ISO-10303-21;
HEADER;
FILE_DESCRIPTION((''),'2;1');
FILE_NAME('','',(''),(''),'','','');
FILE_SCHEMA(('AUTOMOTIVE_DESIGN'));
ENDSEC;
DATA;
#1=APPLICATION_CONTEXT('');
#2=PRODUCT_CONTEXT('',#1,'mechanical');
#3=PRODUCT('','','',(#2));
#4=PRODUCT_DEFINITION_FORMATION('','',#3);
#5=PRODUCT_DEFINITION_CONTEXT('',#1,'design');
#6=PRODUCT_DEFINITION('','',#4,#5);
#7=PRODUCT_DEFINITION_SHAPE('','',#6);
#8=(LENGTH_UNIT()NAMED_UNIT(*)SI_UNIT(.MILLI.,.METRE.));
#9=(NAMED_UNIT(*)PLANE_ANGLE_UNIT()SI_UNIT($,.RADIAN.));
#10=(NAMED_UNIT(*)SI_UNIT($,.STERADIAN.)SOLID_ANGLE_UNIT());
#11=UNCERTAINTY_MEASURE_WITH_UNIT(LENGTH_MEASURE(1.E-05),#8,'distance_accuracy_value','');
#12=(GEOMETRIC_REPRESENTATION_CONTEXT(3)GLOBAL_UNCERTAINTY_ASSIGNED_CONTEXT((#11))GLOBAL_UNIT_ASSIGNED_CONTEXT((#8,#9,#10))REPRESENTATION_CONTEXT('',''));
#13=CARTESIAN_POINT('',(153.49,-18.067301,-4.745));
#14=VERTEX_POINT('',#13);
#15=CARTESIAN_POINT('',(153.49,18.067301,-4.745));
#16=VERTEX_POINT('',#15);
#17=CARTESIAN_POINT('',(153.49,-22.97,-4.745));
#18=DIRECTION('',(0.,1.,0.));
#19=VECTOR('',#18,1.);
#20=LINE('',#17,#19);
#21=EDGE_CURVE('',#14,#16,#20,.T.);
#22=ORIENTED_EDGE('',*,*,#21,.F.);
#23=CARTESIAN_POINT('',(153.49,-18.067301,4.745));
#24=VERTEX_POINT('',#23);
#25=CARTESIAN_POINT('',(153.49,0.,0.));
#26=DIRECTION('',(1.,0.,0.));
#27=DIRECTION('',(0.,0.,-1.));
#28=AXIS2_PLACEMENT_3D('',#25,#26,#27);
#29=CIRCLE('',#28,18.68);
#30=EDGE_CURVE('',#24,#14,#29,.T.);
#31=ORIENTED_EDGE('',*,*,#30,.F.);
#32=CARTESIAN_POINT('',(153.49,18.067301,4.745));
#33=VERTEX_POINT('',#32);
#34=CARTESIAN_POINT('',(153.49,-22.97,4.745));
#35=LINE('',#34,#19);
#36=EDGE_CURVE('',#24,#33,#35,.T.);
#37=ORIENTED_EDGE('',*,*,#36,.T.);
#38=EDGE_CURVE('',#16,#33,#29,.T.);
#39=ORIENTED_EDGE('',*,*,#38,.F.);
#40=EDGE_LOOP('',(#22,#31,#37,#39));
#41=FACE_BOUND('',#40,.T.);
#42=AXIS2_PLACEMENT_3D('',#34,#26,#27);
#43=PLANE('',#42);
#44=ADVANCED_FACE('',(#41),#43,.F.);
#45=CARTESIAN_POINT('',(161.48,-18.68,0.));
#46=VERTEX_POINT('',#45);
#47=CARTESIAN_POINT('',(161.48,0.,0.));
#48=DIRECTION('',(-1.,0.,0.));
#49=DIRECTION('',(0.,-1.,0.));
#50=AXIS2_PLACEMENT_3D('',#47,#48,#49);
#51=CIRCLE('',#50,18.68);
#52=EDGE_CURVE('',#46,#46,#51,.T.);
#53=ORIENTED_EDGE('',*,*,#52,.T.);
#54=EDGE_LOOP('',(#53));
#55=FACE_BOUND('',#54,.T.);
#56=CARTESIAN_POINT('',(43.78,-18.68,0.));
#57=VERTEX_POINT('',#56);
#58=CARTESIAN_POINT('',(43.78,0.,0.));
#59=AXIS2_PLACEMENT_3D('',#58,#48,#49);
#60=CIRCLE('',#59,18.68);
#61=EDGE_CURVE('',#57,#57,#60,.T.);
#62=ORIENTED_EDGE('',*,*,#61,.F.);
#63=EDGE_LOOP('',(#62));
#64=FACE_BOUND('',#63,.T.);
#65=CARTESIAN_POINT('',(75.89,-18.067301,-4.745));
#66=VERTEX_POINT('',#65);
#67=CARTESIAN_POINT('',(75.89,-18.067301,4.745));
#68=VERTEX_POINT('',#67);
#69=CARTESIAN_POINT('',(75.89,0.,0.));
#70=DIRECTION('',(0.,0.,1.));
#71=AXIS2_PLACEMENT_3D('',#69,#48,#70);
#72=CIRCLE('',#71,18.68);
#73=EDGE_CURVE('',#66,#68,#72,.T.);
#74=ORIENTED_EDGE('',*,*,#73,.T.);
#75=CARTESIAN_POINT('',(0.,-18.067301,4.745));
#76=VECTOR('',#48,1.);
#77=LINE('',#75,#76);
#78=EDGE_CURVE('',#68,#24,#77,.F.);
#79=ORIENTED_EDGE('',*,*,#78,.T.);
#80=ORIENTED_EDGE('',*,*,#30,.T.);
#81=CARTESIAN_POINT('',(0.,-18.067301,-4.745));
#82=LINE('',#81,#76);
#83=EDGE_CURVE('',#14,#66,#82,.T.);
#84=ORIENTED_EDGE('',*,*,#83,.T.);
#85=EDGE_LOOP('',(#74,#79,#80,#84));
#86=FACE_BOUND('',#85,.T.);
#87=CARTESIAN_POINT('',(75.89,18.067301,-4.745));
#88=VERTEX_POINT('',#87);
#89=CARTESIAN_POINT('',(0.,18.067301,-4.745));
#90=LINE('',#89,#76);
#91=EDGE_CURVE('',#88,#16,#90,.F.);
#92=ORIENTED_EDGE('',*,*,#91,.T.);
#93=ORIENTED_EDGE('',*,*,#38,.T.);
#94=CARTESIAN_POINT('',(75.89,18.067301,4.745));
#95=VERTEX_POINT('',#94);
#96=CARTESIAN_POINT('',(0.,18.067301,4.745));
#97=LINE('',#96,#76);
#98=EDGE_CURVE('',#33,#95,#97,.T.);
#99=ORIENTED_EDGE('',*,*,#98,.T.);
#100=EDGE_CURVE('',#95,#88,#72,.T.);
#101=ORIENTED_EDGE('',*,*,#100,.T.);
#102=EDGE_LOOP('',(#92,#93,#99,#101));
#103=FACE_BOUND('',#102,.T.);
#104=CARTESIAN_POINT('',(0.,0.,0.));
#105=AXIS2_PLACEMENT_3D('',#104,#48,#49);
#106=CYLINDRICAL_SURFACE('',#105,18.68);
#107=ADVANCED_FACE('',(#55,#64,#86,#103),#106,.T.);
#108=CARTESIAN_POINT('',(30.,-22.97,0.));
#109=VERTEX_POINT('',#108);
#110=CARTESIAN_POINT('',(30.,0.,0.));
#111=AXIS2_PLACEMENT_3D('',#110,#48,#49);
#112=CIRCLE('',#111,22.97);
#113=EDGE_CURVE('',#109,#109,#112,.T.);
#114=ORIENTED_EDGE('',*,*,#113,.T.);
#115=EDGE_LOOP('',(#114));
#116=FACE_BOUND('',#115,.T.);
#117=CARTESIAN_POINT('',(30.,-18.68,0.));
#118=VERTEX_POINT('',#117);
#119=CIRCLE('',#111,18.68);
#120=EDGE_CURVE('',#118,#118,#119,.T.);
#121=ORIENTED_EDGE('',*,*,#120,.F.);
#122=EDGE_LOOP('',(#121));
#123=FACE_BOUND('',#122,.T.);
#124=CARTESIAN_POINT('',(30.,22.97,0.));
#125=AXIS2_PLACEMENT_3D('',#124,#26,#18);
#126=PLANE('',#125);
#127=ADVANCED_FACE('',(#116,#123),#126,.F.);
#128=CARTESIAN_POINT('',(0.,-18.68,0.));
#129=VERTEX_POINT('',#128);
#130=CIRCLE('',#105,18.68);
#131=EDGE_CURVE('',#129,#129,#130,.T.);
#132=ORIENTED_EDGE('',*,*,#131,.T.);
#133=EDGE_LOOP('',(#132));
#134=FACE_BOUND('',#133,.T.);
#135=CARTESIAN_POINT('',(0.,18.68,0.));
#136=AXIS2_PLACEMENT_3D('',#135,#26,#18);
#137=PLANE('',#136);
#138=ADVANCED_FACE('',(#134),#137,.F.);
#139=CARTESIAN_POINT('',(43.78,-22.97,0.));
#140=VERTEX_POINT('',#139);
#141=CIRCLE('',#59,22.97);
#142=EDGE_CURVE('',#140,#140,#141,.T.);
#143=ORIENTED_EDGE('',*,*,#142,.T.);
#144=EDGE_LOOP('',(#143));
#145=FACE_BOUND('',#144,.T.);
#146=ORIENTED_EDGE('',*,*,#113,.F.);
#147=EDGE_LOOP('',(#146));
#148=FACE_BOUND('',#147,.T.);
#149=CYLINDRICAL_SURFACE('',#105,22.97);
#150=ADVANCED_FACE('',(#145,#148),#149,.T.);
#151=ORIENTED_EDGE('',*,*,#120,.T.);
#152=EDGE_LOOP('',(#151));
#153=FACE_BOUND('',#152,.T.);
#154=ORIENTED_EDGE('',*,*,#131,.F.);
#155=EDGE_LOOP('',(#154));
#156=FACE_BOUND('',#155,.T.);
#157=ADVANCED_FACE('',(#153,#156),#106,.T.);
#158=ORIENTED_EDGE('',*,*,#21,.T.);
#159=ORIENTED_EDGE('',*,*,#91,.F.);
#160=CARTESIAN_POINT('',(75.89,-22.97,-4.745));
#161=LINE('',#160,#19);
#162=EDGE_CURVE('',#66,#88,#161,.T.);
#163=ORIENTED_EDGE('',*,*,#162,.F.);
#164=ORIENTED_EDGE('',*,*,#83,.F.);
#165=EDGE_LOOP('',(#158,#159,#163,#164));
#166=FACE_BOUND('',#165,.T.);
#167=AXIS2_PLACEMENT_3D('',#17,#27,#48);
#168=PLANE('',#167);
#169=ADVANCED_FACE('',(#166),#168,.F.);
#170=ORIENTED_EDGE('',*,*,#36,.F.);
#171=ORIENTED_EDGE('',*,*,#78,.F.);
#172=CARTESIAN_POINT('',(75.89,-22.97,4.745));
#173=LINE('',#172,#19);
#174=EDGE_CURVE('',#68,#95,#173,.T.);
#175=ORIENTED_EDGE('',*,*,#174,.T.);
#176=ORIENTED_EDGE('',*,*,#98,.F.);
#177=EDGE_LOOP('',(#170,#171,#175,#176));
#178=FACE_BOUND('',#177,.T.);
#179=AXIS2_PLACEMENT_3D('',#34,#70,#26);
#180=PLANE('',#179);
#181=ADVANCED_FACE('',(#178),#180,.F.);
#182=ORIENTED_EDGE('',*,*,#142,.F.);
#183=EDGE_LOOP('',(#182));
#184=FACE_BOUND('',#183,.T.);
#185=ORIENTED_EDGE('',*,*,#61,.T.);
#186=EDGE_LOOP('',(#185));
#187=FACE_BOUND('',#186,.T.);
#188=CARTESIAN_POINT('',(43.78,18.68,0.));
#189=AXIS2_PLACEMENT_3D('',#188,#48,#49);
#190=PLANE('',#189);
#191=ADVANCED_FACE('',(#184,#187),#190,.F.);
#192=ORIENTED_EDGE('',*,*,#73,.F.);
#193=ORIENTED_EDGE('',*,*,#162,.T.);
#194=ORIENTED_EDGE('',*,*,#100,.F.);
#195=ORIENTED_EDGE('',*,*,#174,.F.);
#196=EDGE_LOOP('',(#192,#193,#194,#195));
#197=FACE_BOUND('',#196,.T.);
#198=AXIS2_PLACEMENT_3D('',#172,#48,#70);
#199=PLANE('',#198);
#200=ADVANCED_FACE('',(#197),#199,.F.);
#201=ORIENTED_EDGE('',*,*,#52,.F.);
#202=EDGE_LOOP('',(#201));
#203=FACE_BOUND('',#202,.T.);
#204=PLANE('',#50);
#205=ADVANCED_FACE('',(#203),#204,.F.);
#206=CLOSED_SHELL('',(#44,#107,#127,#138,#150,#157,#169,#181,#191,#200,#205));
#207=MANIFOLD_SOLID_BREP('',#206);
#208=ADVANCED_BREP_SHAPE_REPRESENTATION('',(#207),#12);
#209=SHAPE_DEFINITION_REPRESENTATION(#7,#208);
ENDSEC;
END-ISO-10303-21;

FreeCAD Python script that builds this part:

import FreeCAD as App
import Part
import Sketcher

V = App.Vector

doc = App.newDocument("Part")
body = doc.addObject("PartDesign::Body", "Body")

# Sketch on XY plane
sketch1 = doc.addObject("Sketcher::SketchObject", "Sketch")
body.addObject(sketch1)
sketch1.AttachmentSupport = (doc.XY_Plane, [""])
sketch1.MapMode = "FlatFace"
sketch1.addGeometry(Part.LineSegment(V(161.5, 0, 0), V(161.5, 18.7, 0)), False)
sketch1.addGeometry(Part.LineSegment(V(161.5, 18.7, 0), V(43.8, 18.7, 0)), False)
sketch1.addGeometry(Part.LineSegment(V(43.8, 18.7, 0), V(43.8, 23, 0)), False)
sketch1.addGeometry(Part.LineSegment(V(43.8, 23, 0), V(30, 23, 0)), False)
sketch1.addGeometry(Part.LineSegment(V(30, 23, 0), V(30, 18.7, 0)), False)
sketch1.addGeometry(Part.LineSegment(V(30, 18.7, 0), V(0, 18.7, 0)), False)
sketch1.addGeometry(Part.LineSegment(V(0, 18.7, 0), V(0, 0, 0)), False)
sketch1.addGeometry(Part.LineSegment(V(0, 0, 0), V(161.5, 0, 0)), False)
sketch1.addConstraint(Sketcher.Constraint("Coincident", 0, 2, 1, 1))
sketch1.addConstraint(Sketcher.Constraint("Coincident", 1, 2, 2, 1))
sketch1.addConstraint(Sketcher.Constraint("Coincident", 2, 2, 3, 1))
sketch1.addConstraint(Sketcher.Constraint("Coincident", 3, 2, 4, 1))
sketch1.addConstraint(Sketcher.Constraint("Coincident", 4, 2, 5, 1))
sketch1.addConstraint(Sketcher.Constraint("Coincident", 5, 2, 6, 1))
sketch1.addConstraint(Sketcher.Constraint("Coincident", 6, 2, 7, 1))
sketch1.addConstraint(Sketcher.Constraint("Coincident", 7, 2, 0, 1))
sketch1.addConstraint(Sketcher.Constraint("Vertical", 0))
sketch1.addConstraint(Sketcher.Constraint("Horizontal", 1))
sketch1.addConstraint(Sketcher.Constraint("Vertical", 2))
sketch1.addConstraint(Sketcher.Constraint("Horizontal", 3))
sketch1.addConstraint(Sketcher.Constraint("Vertical", 4))
sketch1.addConstraint(Sketcher.Constraint("Horizontal", 5))
sketch1.addConstraint(Sketcher.Constraint("Vertical", 6))
sketch1.addConstraint(Sketcher.Constraint("Horizontal", 7))
sketch1.addConstraint(Sketcher.Constraint("Coincident", 6, 2, -1, 1))
sketch1.addConstraint(Sketcher.Constraint("Horizontal", 1, 2, 4, 2))
sketch1.addConstraint(Sketcher.Constraint("DistanceX", 5, 2, 5, 1, 30.0))
sketch1.addConstraint(Sketcher.Constraint("DistanceX", 1, 2, 1, 1, 117.7))
sketch1.addConstraint(Sketcher.Constraint("DistanceX", 3, 2, 3, 1, 13.78))
sketch1.addConstraint(Sketcher.Constraint("DistanceY", 0, 1, 0, 2, 18.68))
sketch1.addConstraint(Sketcher.Constraint("DistanceY", 2, 1, 2, 2, 4.29))
revolution = doc.addObject("PartDesign::Revolution", "Revolution")
body.addObject(revolution)
revolution.Profile = sketch1
revolution.ReferenceAxis = (sketch1, ["H_Axis"])
revolution.Angle = 360

# Sketch on XZ plane
sketch2 = doc.addObject("Sketcher::SketchObject", "Sketch001")
body.addObject(sketch2)
sketch2.AttachmentSupport = (doc.XZ_Plane, [""])
sketch2.MapMode = "FlatFace"
sketch2.addGeometry(Part.LineSegment(V(76, -5, 0), V(76, 5, 0)), False)
sketch2.addGeometry(Part.LineSegment(V(76, 5, 0), V(153, 5, 0)), False)
sketch2.addGeometry(Part.LineSegment(V(153, 5, 0), V(153, -5, 0)), False)
sketch2.addGeometry(Part.LineSegment(V(153, -5, 0), V(76, -5, 0)), False)
sketch2.addConstraint(Sketcher.Constraint("Coincident", 0, 2, 1, 1))
sketch2.addConstraint(Sketcher.Constraint("Coincident", 1, 2, 2, 1))
sketch2.addConstraint(Sketcher.Constraint("Coincident", 2, 2, 3, 1))
sketch2.addConstraint(Sketcher.Constraint("Coincident", 3, 2, 0, 1))
sketch2.addConstraint(Sketcher.Constraint("Vertical", 0))
sketch2.addConstraint(Sketcher.Constraint("Horizontal", 1))
sketch2.addConstraint(Sketcher.Constraint("Vertical", 2))
sketch2.addConstraint(Sketcher.Constraint("Horizontal", 3))
sketch2.addConstraint(Sketcher.Constraint("DistanceX", 1, 1, 1, 2, 77.6))
sketch2.addConstraint(Sketcher.Constraint("DistanceY", 0, 1, 0, 2, 9.49))
sketch2.addConstraint(Sketcher.Constraint("DistanceX", -1, 1, 0, 2, 75.89))
sketch2.addConstraint(Sketcher.Constraint("DistanceY", -1, 1, 0, 2, 4.745))
pocket1 = doc.addObject("PartDesign::Pocket", "Pocket")
body.addObject(pocket1)
pocket1.Profile = sketch2
pocket1.Type = "ThroughAll"
pocket1.Midplane = True

doc.recompute()
